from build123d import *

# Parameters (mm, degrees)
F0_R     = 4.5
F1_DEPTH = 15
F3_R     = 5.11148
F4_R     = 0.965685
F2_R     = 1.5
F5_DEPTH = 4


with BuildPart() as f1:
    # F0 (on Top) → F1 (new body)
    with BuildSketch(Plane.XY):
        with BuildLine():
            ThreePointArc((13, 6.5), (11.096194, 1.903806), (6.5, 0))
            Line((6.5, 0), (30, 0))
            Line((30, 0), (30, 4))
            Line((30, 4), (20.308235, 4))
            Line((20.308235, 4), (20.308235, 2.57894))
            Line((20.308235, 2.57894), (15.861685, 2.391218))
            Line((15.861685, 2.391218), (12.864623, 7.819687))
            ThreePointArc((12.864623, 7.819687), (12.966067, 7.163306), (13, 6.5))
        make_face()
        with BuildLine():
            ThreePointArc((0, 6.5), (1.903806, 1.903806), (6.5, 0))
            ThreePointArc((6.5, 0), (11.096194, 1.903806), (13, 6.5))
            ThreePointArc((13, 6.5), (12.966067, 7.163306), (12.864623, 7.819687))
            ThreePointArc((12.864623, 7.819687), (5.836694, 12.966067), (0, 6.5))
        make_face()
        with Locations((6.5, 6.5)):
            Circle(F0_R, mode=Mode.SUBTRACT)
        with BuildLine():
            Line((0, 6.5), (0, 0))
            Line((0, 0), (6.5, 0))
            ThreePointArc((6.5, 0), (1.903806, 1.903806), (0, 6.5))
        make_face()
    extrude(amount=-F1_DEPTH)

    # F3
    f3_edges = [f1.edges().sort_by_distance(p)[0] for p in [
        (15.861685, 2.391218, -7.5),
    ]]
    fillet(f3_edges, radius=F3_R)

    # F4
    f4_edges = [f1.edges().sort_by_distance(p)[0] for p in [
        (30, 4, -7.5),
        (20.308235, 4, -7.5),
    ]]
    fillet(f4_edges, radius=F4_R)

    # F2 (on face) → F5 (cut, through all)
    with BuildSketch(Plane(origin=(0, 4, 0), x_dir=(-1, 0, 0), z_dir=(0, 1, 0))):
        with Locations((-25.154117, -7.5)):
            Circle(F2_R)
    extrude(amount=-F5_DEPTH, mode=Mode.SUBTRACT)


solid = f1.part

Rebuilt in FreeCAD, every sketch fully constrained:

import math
import FreeCAD as App
import Part
import Sketcher
Q = App.Units.Quantity


def edges_at(feature, points):
    """Names of the edges that pass closest to the given points."""
    edges = feature.Shape.Edges
    near = lambda p: min(range(len(edges)), key=lambda i: edges[i].distToShape(Part.Vertex(*p))[0])
    return sorted({f"Edge{near(p) + 1}" for p in points})

doc = App.newDocument("Part")
body = doc.addObject("PartDesign::Body", "Body")

sketch1 = doc.addObject("Sketcher::SketchObject", "Sketch")
body.addObject(sketch1)
sketch1.AttachmentSupport = (doc.XY_Plane, [""])
sketch1.MapMode = "FlatFace"
sketch1.addGeometry([
    Part.LineSegment(App.Vector(30, 0, 0), App.Vector(30, 4, 0)),
    Part.LineSegment(App.Vector(30, 4, 0), App.Vector(20.3, 4, 0)),
    Part.LineSegment(App.Vector(20.3, 4, 0), App.Vector(20.3, 2.6, 0)),
    Part.LineSegment(App.Vector(20.3, 2.6, 0), App.Vector(15.9, 2.4, 0)),
    Part.LineSegment(App.Vector(15.9, 2.4, 0), App.Vector(12.9, 7.8, 0)),
    Part.ArcOfCircle(Part.Circle(App.Vector(6.5, 6.5, 0), App.Vector(0, 0, 1), 6.5), math.radians(12), math.radians(180)),
    Part.LineSegment(App.Vector(0, 6.5, 0), App.Vector(0, 0, 0)),
    Part.LineSegment(App.Vector(0, 0, 0), App.Vector(30, 0, 0)),
    Part.Circle(App.Vector(6.5, 6.5, 0), App.Vector(0, 0, 1), 4.5),
], False)
sketch1.addConstraint([
    Sketcher.Constraint("Coincident", 0, 2, 1, 1),
    Sketcher.Constraint("Coincident", 1, 2, 2, 1),
    Sketcher.Constraint("Coincident", 2, 2, 3, 1),
    Sketcher.Constraint("Coincident", 3, 2, 4, 1),
    Sketcher.Constraint("Coincident", 4, 2, 5, 1),
    Sketcher.Constraint("Tangent", 5, 2, 6, 1),
    Sketcher.Constraint("Coincident", 6, 2, 7, 1),
    Sketcher.Constraint("Coincident", 7, 2, 0, 1),
    Sketcher.Constraint("Vertical", 0),
    Sketcher.Constraint("Horizontal", 1),
    Sketcher.Constraint("Vertical", 2),
    Sketcher.Constraint("Vertical", 6),
    Sketcher.Constraint("Horizontal", 7),
    Sketcher.Constraint("Coincident", 6, 2, -1, 1),
    Sketcher.Constraint("Coincident", 8, 3, 5, 3),
    Sketcher.Constraint("Diameter", 8, Q("9 mm")),
    Sketcher.Constraint("Radius", 5, Q("6.5 mm")),
    Sketcher.Constraint("DistanceX", 7, 1, 7, 2, Q("30 mm")),
    Sketcher.Constraint("DistanceY", 0, 1, 0, 2, Q("4 mm")),
    Sketcher.Constraint("DistanceY", 6, 2, 6, 1, Q("6.5 mm")),
    Sketcher.Constraint("DistanceY", 2, 2, 2, 1, Q("1.42106 mm")),
    Sketcher.Constraint("Distance", 3, Q("4.450511 mm")),
    Sketcher.Constraint("Distance", 4, Q("6.200859 mm")),
    Sketcher.Constraint("DistanceX", 1, 2, 1, 1, Q("9.691765 mm")),
    Sketcher.Constraint("DistanceX", 3, 2, 2, 2, Q("4.44655 mm")),
])
pad1 = doc.addObject("PartDesign::Pad", "Pad")
body.addObject(pad1)
pad1.Profile = sketch1
pad1.Length = 15
pad1.Reversed = True
doc.recompute()

fillet = doc.addObject("PartDesign::Fillet", "Fillet")
body.addObject(fillet)
fillet.Base = (pad1, edges_at(pad1, [(15.862, 2.391, -7.5)]))
fillet.Radius = 5.11148
doc.recompute()

fillet2 = doc.addObject("PartDesign::Fillet", "Fillet001")
body.addObject(fillet2)
fillet2.Base = (fillet, edges_at(fillet, [(30, 4, -7.5), (20.308, 4, -7.5)]))
fillet2.Radius = 0.965685

sketch2 = doc.addObject("Sketcher::SketchObject", "Sketch001")
body.addObject(sketch2)
sketch2.AttachmentSupport = (doc.XZ_Plane, [""])
sketch2.MapMode = "FlatFace"
sketch2.AttachmentOffset = App.Placement(App.Vector(0, 0, -4), App.Rotation())
sketch2.addGeometry(Part.Circle(App.Vector(25.2, -7.5, 0), App.Vector(0, 0, 1), 1.5), False)
sketch2.addConstraint([
    Sketcher.Constraint("Diameter", 0, Q("3 mm")),
    Sketcher.Constraint("DistanceY", 0, 3, -1, 1, Q("7.5 mm")),
    Sketcher.Constraint("DistanceX", -1, 1, 0, 3, Q("25.154117 mm")),
])
pocket1 = doc.addObject("PartDesign::Pocket", "Pocket")
body.addObject(pocket1)
pocket1.Profile = sketch2
pocket1.Type = "ThroughAll"
pocket1.Reversed = True

doc.recompute()
